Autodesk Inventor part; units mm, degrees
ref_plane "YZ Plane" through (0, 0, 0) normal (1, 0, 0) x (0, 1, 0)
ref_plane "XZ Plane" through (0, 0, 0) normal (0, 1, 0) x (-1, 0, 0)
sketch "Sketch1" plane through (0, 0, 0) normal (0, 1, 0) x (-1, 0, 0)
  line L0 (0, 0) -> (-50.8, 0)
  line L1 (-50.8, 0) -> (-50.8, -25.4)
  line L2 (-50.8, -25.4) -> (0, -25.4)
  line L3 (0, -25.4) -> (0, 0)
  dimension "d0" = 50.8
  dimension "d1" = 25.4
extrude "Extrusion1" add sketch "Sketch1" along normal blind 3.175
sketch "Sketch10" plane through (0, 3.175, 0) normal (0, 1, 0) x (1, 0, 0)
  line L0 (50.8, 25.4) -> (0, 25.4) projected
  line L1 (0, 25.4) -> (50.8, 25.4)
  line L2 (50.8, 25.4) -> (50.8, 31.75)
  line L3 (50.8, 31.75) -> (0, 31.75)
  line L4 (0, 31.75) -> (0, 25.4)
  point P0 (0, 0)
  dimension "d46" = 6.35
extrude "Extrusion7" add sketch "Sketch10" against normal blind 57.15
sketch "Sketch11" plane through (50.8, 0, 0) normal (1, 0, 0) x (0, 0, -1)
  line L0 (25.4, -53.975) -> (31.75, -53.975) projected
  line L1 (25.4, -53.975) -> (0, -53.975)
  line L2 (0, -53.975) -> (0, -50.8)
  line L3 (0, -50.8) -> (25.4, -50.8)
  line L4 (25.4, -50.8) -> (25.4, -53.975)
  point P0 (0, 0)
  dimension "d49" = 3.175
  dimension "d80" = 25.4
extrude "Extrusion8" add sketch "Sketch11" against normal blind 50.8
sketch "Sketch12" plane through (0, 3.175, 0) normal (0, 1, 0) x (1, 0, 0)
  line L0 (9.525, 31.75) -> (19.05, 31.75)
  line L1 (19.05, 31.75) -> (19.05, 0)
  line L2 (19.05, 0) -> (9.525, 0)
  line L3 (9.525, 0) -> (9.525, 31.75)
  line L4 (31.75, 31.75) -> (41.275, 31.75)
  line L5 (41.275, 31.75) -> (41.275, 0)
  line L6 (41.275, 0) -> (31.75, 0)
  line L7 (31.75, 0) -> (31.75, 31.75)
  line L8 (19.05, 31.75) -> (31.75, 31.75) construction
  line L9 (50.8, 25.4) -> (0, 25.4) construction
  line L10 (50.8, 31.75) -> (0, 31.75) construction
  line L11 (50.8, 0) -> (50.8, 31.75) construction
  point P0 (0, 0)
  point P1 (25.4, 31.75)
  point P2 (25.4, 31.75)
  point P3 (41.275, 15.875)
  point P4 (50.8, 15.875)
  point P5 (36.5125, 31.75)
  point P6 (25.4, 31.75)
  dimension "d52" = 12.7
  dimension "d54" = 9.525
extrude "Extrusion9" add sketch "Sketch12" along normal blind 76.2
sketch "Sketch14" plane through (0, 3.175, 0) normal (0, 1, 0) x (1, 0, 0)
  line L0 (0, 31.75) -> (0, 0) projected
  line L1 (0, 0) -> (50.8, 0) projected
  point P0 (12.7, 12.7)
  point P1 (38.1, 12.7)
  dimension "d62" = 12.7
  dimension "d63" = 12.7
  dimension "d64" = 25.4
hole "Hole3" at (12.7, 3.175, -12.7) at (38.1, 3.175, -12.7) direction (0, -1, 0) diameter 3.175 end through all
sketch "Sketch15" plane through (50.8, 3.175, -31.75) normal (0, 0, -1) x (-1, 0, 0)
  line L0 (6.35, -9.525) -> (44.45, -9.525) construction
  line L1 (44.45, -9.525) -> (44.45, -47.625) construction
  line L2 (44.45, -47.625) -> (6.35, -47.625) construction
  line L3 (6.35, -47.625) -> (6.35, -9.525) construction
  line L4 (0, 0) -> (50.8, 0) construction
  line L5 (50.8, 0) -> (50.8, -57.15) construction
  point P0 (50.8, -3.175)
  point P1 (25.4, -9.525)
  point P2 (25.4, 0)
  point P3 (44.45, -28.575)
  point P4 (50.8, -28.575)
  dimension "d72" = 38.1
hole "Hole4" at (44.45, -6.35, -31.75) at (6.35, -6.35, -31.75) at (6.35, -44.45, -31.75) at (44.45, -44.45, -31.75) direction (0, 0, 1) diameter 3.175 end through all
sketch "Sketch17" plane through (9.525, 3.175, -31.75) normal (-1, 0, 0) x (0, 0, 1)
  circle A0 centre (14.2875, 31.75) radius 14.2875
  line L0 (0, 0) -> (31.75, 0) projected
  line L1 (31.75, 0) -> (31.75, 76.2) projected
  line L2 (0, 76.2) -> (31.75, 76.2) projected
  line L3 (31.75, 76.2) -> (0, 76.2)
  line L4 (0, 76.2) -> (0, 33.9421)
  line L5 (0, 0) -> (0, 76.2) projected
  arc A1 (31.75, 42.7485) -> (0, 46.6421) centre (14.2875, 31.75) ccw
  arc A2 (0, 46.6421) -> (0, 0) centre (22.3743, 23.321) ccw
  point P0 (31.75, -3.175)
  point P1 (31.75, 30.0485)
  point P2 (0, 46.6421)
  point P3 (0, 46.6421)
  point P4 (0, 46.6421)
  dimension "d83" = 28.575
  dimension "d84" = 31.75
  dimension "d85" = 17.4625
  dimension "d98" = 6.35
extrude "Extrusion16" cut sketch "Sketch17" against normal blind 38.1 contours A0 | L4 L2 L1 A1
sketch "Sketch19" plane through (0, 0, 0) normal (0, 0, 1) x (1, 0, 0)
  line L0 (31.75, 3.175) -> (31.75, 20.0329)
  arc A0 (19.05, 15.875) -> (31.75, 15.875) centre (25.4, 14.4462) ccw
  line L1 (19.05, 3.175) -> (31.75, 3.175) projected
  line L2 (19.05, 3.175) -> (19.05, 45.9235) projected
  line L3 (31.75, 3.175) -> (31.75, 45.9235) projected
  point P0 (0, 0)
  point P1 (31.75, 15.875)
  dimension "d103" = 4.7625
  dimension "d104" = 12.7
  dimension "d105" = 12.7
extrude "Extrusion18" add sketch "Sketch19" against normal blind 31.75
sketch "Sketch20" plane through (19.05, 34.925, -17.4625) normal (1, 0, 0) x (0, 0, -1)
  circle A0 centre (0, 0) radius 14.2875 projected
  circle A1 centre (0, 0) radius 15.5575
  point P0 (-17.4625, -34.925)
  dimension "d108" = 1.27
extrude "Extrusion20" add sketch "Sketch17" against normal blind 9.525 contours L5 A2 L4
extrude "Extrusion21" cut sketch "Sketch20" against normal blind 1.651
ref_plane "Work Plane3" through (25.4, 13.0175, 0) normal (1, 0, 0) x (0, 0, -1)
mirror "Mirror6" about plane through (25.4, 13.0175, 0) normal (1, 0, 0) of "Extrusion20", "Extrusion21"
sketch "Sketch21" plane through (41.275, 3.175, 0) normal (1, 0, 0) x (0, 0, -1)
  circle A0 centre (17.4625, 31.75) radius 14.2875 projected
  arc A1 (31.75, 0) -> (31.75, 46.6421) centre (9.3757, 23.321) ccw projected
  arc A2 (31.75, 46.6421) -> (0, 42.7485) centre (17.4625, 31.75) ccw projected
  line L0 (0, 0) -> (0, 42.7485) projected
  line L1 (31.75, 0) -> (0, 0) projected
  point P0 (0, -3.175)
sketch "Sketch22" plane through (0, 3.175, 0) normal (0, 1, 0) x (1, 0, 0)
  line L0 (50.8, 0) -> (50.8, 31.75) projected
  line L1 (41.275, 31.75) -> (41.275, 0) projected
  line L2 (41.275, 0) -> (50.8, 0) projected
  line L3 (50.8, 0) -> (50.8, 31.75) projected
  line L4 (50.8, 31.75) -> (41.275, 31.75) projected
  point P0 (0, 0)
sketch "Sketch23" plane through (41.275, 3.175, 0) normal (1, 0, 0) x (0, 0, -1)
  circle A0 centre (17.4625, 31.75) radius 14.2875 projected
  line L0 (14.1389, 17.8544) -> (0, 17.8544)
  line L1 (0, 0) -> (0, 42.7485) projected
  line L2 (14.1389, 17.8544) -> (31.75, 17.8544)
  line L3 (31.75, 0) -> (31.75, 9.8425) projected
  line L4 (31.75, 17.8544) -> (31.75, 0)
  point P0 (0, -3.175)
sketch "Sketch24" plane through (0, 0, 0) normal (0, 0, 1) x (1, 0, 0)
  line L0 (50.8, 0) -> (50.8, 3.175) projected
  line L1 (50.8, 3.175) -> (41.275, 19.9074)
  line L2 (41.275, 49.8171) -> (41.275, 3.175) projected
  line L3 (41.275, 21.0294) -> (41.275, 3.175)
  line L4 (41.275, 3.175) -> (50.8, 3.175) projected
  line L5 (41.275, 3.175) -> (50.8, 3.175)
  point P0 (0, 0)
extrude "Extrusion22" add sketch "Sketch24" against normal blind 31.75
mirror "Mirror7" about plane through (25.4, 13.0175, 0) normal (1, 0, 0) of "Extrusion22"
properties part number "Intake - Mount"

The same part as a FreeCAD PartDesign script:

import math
import FreeCAD as App
import Part
import Sketcher
Q = App.Units.Quantity

doc = App.newDocument("Part")
body = doc.addObject("PartDesign::Body", "Body")

# Sketch on XZ plane
sketch1 = body.newObject("Sketcher::SketchObject", "Sketch")
sketch1.AttachmentSupport = (doc.getObject("XZ_Plane"), [""])
sketch1.MapMode = "FlatFace"
sketch1.addGeometry(Part.LineSegment(App.Vector(0, -25, 0), App.Vector(0, 0, 0)), False)
sketch1.addGeometry(Part.LineSegment(App.Vector(0, 0, 0), App.Vector(51, 0, 0)), False)
sketch1.addGeometry(Part.LineSegment(App.Vector(51, 0, 0), App.Vector(51, -25, 0)), False)
sketch1.addGeometry(Part.LineSegment(App.Vector(51, -25, 0), App.Vector(0, -25, 0)), False)
sketch1.addConstraint(Sketcher.Constraint("Coincident", 0, 2, 1, 1))
sketch1.addConstraint(Sketcher.Constraint("Coincident", 1, 2, 2, 1))
sketch1.addConstraint(Sketcher.Constraint("Coincident", 2, 2, 3, 1))
sketch1.addConstraint(Sketcher.Constraint("Coincident", 3, 2, 0, 1))
sketch1.addConstraint(Sketcher.Constraint("Vertical", 0))
sketch1.addConstraint(Sketcher.Constraint("Horizontal", 1))
sketch1.addConstraint(Sketcher.Constraint("Vertical", 2))
sketch1.addConstraint(Sketcher.Constraint("Horizontal", 3))
sketch1.addConstraint(Sketcher.Constraint("Coincident", 0, 2, -1, 1))
sketch1.addConstraint(Sketcher.Constraint("DistanceX", 1, 1, 1, 2, Q("2 in")))
sketch1.addConstraint(Sketcher.Constraint("DistanceY", 0, 1, 0, 2, Q("1 in")))
pad1 = body.newObject("PartDesign::Pad", "Pad")
pad1.Profile = sketch1
pad1.Length = Q("0.125 in")
pad1.Reversed = True

# Sketch on XZ plane
sketch2 = body.newObject("Sketcher::SketchObject", "Sketch001")
sketch2.AttachmentSupport = (doc.getObject("XZ_Plane"), [""])
sketch2.MapMode = "FlatFace"
sketch2.AttachmentOffset = App.Placement(App.Vector(0, 0, -0.125 * 25.4), App.Rotation())
sketch2.addGeometry(Part.LineSegment(App.Vector(0, -25, 0), App.Vector(51, -25, 0)), False)
sketch2.addGeometry(Part.LineSegment(App.Vector(51, -25, 0), App.Vector(51, -32, 0)), False)
sketch2.addGeometry(Part.LineSegment(App.Vector(51, -32, 0), App.Vector(0, -32, 0)), False)
sketch2.addGeometry(Part.LineSegment(App.Vector(0, -32, 0), App.Vector(0, -25, 0)), False)
sketch2.addConstraint(Sketcher.Constraint("Coincident", 0, 2, 1, 1))
sketch2.addConstraint(Sketcher.Constraint("Coincident", 1, 2, 2, 1))
sketch2.addConstraint(Sketcher.Constraint("Coincident", 2, 2, 3, 1))
sketch2.addConstraint(Sketcher.Constraint("Coincident", 3, 2, 0, 1))
sketch2.addConstraint(Sketcher.Constraint("Horizontal", 0))
sketch2.addConstraint(Sketcher.Constraint("Vertical", 1))
sketch2.addConstraint(Sketcher.Constraint("Horizontal", 2))
sketch2.addConstraint(Sketcher.Constraint("Vertical", 3))
sketch2.addConstraint(Sketcher.Constraint("PointOnObject", 2, 2, -2))
sketch2.addConstraint(Sketcher.Constraint("DistanceY", 1, 2, 1, 1, Q("0.25 in")))
sketch2.addConstraint(Sketcher.Constraint("DistanceX", 0, 1, 0, 2, Q("2 in")))
sketch2.addConstraint(Sketcher.Constraint("DistanceY", 0, 2, -1, 1, Q("1 in")))
pad2 = body.newObject("PartDesign::Pad", "Pad001")
pad2.Profile = sketch2
pad2.Length = Q("2.25 in")

# Sketch on YZ plane
sketch3 = body.newObject("Sketcher::SketchObject", "Sketch002")
sketch3.AttachmentSupport = (doc.getObject("YZ_Plane"), [""])
sketch3.MapMode = "FlatFace"
sketch3.AttachmentOffset = App.Placement(App.Vector(0, 0, 2 * 25.4), App.Rotation())
sketch3.addGeometry(Part.LineSegment(App.Vector(-54, 0, 0), App.Vector(-54, -25.4, 0)), False)
sketch3.addGeometry(Part.LineSegment(App.Vector(-54, -25.4, 0), App.Vector(-50.8, -25.4, 0)), False)
sketch3.addGeometry(Part.LineSegment(App.Vector(-50.8, -25.4, 0), App.Vector(-50.8, 0, 0)), False)
sketch3.addGeometry(Part.LineSegment(App.Vector(-50.8, 0, 0), App.Vector(-54, 0, 0)), False)
sketch3.addConstraint(Sketcher.Constraint("Coincident", 0, 2, 1, 1))
sketch3.addConstraint(Sketcher.Constraint("Coincident", 1, 2, 2, 1))
sketch3.addConstraint(Sketcher.Constraint("Coincident", 2, 2, 3, 1))
sketch3.addConstraint(Sketcher.Constraint("Coincident", 3, 2, 0, 1))
sketch3.addConstraint(Sketcher.Constraint("Vertical", 0))
sketch3.addConstraint(Sketcher.Constraint("Horizontal", 1))
sketch3.addConstraint(Sketcher.Constraint("Vertical", 2))
sketch3.addConstraint(Sketcher.Constraint("Horizontal", 3))
sketch3.addConstraint(Sketcher.Constraint("PointOnObject", 2, 2, -1))
sketch3.addConstraint(Sketcher.Constraint("DistanceY", 0, 2, 0, 1, Q("1 in")))
sketch3.addConstraint(Sketcher.Constraint("DistanceX", 1, 1, 1, 2, Q("0.125 in")))
sketch3.addConstraint(Sketcher.Constraint("DistanceX", 1, 2, -1, 1, Q("2 in")))
pad3 = body.newObject("PartDesign::Pad", "Pad002")
pad3.Profile = sketch3
pad3.Length = Q("2 in")
pad3.Reversed = True

# Sketch on XZ plane
sketch4 = body.newObject("Sketcher::SketchObject", "Sketch003")
sketch4.AttachmentSupport = (doc.getObject("XZ_Plane"), [""])
sketch4.MapMode = "FlatFace"
sketch4.AttachmentOffset = App.Placement(App.Vector(0, 0, -0.125 * 25.4), App.Rotation())
sketch4.addGeometry(Part.LineSegment(App.Vector(19, -32, 0), App.Vector(10, -32, 0)), False)
sketch4.addGeometry(Part.LineSegment(App.Vector(10, -32, 0), App.Vector(10, 0, 0)), False)
sketch4.addGeometry(Part.LineSegment(App.Vector(10, 0, 0), App.Vector(19, 0, 0)), False)
sketch4.addGeometry(Part.LineSegment(App.Vector(19, 0, 0), App.Vector(19, -32, 0)), False)
sketch4.addGeometry(Part.LineSegment(App.Vector(41, -32, 0), App.Vector(32, -32, 0)), False)
sketch4.addGeometry(Part.LineSegment(App.Vector(32, -32, 0), App.Vector(32, 0, 0)), False)
sketch4.addGeometry(Part.LineSegment(App.Vector(32, 0, 0), App.Vector(41, 0, 0)), False)
sketch4.addGeometry(Part.LineSegment(App.Vector(41, 0, 0), App.Vector(41, -32, 0)), False)
sketch4.addConstraint(Sketcher.Constraint("Coincident", 0, 2, 1, 1))
sketch4.addConstraint(Sketcher.Constraint("Coincident", 1, 2, 2, 1))
sketch4.addConstraint(Sketcher.Constraint("Coincident", 2, 2, 3, 1))
sketch4.addConstraint(Sketcher.Constraint("Coincident", 3, 2, 0, 1))
sketch4.addConstraint(Sketcher.Constraint("Coincident", 4, 2, 5, 1))
sketch4.addConstraint(Sketcher.Constraint("Coincident", 5, 2, 6, 1))
sketch4.addConstraint(Sketcher.Constraint("Coincident", 6, 2, 7, 1))
sketch4.addConstraint(Sketcher.Constraint("Coincident", 7, 2, 4, 1))
sketch4.addConstraint(Sketcher.Constraint("Horizontal", 0))
sketch4.addConstraint(Sketcher.Constraint("Vertical", 1))
sketch4.addConstraint(Sketcher.Constraint("Horizontal", 2))
sketch4.addConstraint(Sketcher.Constraint("Vertical", 3))
sketch4.addConstraint(Sketcher.Constraint("Horizontal", 4))
sketch4.addConstraint(Sketcher.Constraint("Vertical", 5))
sketch4.addConstraint(Sketcher.Constraint("Horizontal", 6))
sketch4.addConstraint(Sketcher.Constraint("Vertical", 7))
sketch4.addConstraint(Sketcher.Constraint("PointOnObject", 1, 2, -1))
sketch4.addConstraint(Sketcher.Constraint("PointOnObject", 5, 2, -1))
sketch4.addConstraint(Sketcher.Constraint("Horizontal", 3, 2, 4, 2))
sketch4.addConstraint(Sketcher.Constraint("Equal", 2, 4))
sketch4.addConstraint(Sketcher.Constraint("DistanceX", 3, 2, 4, 2, Q("0.5 in")))
sketch4.addConstraint(Sketcher.Constraint("DistanceX", 0, 2, 0, 1, Q("0.375 in")))
sketch4.addConstraint(Sketcher.Constraint("DistanceX", -1, 1, 0, 2, Q("0.375 in")))
sketch4.addConstraint(Sketcher.Constraint("DistanceY", 1, 1, 1, 2, Q("1.25 in")))
pad4 = body.newObject("PartDesign::Pad", "Pad003")
pad4.Profile = sketch4
pad4.Length = Q("3 in")
pad4.Reversed = True

# Sketch on XZ plane
sketch5 = body.newObject("Sketcher::SketchObject", "Sketch004")
sketch5.AttachmentSupport = (doc.getObject("XZ_Plane"), [""])
sketch5.MapMode = "FlatFace"
sketch5.AttachmentOffset = App.Placement(App.Vector(0, 0, -0.125 * 25.4), App.Rotation())
sketch5.addGeometry(Part.Circle(App.Vector(12.7, -12.7, 0), App.Vector(0, 0, 1), 1.6), False)
sketch5.addGeometry(Part.Circle(App.Vector(38.1, -12.7, 0), App.Vector(0, 0, 1), 1.6), False)
sketch5.addConstraint(Sketcher.Constraint("Equal", 0, 1))
sketch5.addConstraint(Sketcher.Constraint("Horizontal", 0, 3, 1, 3))
sketch5.addConstraint(Sketcher.Constraint("Diameter", 0, Q("0.125 in")))
sketch5.addConstraint(Sketcher.Constraint("DistanceX", 0, 3, 1, 3, Q("1 in")))
sketch5.addConstraint(Sketcher.Constraint("DistanceX", -1, 1, 0, 3, Q("0.5 in")))
sketch5.addConstraint(Sketcher.Constraint("DistanceY", 0, 3, -1, 1, Q("0.5 in")))
doc.recompute()
hole = body.newObject("PartDesign::Hole", "Hole")
hole.Profile = sketch5
hole.ThreadType = "None"
hole.Diameter = Q("0.125 in")
hole.DepthType = "ThroughAll"
hole.Reversed = True

# Sketch on XY plane
sketch6 = body.newObject("Sketcher::SketchObject", "Sketch005")
sketch6.AttachmentSupport = (doc.getObject("XY_Plane"), [""])
sketch6.MapMode = "FlatFace"
sketch6.AttachmentOffset = App.Placement(App.Vector(0, 0, -1.25 * 25.4), App.Rotation())
sketch6.addGeometry(Part.Circle(App.Vector(44.5, -6.3, 0), App.Vector(0, 0, 1), 1.6), False)
sketch6.addGeometry(Part.Circle(App.Vector(6.3, -6.3, 0), App.Vector(0, 0, 1), 1.6), False)
sketch6.addGeometry(Part.Circle(App.Vector(6.3, -44.5, 0), App.Vector(0, 0, 1), 1.6), False)
sketch6.addGeometry(Part.Circle(App.Vector(44.5, -44.5, 0), App.Vector(0, 0, 1), 1.6), False)
sketch6.addConstraint(Sketcher.Constraint("Equal", 0, 1))
sketch6.addConstraint(Sketcher.Constraint("Equal", 1, 2))
sketch6.addConstraint(Sketcher.Constraint("Equal", 2, 3))
sketch6.addConstraint(Sketcher.Constraint("Horizontal", 0, 3, 1, 3))
sketch6.addConstraint(Sketcher.Constraint("Horizontal", 2, 3, 3, 3))
sketch6.addConstraint(Sketcher.Constraint("Vertical", 1, 3, 2, 3))
sketch6.addConstraint(Sketcher.Constraint("Vertical", 0, 3, 3, 3))
sketch6.addConstraint(Sketcher.Constraint("Diameter", 0, Q("0.125 in")))
sketch6.addConstraint(Sketcher.Constraint("DistanceX", 1, 3, 0, 3, Q("1.5 in")))
sketch6.addConstraint(Sketcher.Constraint("DistanceY", 2, 3, 1, 3, Q("1.5 in")))
sketch6.addConstraint(Sketcher.Constraint("DistanceX", -1, 1, 0, 3, Q("1.75 in")))
sketch6.addConstraint(Sketcher.Constraint("DistanceY", 0, 3, -1, 1, Q("0.25 in")))
doc.recompute()
hole2 = body.newObject("PartDesign::Hole", "Hole001")
hole2.Profile = sketch6
hole2.ThreadType = "None"
hole2.Diameter = Q("0.125 in")
hole2.DepthType = "ThroughAll"
hole2.Reversed = True

# Sketch on YZ plane
sketch7 = body.newObject("Sketcher::SketchObject", "Sketch006")
sketch7.AttachmentSupport = (doc.getObject("YZ_Plane"), [""])
sketch7.MapMode = "FlatFace"
sketch7.AttachmentOffset = App.Placement(App.Vector(0, 0, 0.375 * 25.4), App.Rotation())
sketch7.addGeometry(Part.Circle(App.Vector(35, -17, 0), App.Vector(0, 0, 1), 14), False)
sketch7.addGeometry(Part.LineSegment(App.Vector(79, -32, 0), App.Vector(50, -32, 0)), False)
sketch7.addGeometry(Part.ArcOfCircle(Part.Circle(App.Vector(35, -17, 0), App.Vector(0, 0, 1), 21), math.radians(-44), math.radians(58)), False)
sketch7.addGeometry(Part.LineSegment(App.Vector(46, 0, 0), App.Vector(79, 0, 0)), False)
sketch7.addGeometry(Part.LineSegment(App.Vector(79, 0, 0), App.Vector(79, -32, 0)), False)
sketch7.addConstraint(Sketcher.Constraint("Coincident", 1, 2, 2, 1))
sketch7.addConstraint(Sketcher.Constraint("Coincident", 2, 2, 3, 1))
sketch7.addConstraint(Sketcher.Constraint("Coincident", 3, 2, 4, 1))
sketch7.addConstraint(Sketcher.Constraint("Coincident", 4, 2, 1, 1))
sketch7.addConstraint(Sketcher.Constraint("Horizontal", 1))
sketch7.addConstraint(Sketcher.Constraint("Horizontal", 3))
sketch7.addConstraint(Sketcher.Constraint("Vertical", 4))
sketch7.addConstraint(Sketcher.Constraint("Coincident", 2, 3, 0, 3))
sketch7.addConstraint(Sketcher.Constraint("PointOnObject", 2, 2, -1))
sketch7.addConstraint(Sketcher.Constraint("Diameter", 0, Q("1.125 in")))
sketch7.addConstraint(Sketcher.Constraint("DistanceY", 4, 2, 4, 1, Q("1.25 in")))
sketch7.addConstraint(Sketcher.Constraint("DistanceY", 0, 3, -1, 1, Q("0.6875 in")))
sketch7.addConstraint(Sketcher.Constraint("Radius", 2, Q("0.8125 in")))
sketch7.addConstraint(Sketcher.Constraint("DistanceX", 3, 1, 3, 2, Q("1.317 in")))
sketch7.addConstraint(Sketcher.Constraint("DistanceX", -1, 1, 0, 3, Q("1.375 in")))
pocket1 = body.newObject("PartDesign::Pocket", "Pocket")
pocket1.Profile = sketch7
pocket1.Length = Q("1.5 in")
pocket1.Reversed = True

# Sketch on XY plane
sketch8 = body.newObject("Sketcher::SketchObject", "Sketch007")
sketch8.AttachmentSupport = (doc.getObject("XY_Plane"), [""])
sketch8.MapMode = "FlatFace"
sketch8.addGeometry(Part.LineSegment(App.Vector(19.1, 3.2, 0), App.Vector(31.8, 3.2, 0)), False)
sketch8.addGeometry(Part.LineSegment(App.Vector(31.8, 3.2, 0), App.Vector(31.8, 13, 0)), False)
sketch8.addGeometry(Part.ArcOfCircle(Part.Circle(App.Vector(25.4, 14.4, 0), App.Vector(0, 0, 1), 6.5), math.radians(-167), math.radians(-13)), False)
sketch8.addGeometry(Part.LineSegment(App.Vector(19.1, 13, 0), App.Vector(19.1, 3.2, 0)), False)
sketch8.addGeometry(Part.ArcOfCircle(Part.Circle(App.Vector(25.4, 14.4, 0), App.Vector(0, 0, 1), 6.5), math.radians(167), math.radians(193)), False)
sketch8.addGeometry(Part.LineSegment(App.Vector(19.1, 13, 0), App.Vector(19.1, 15.9, 0)), False)
sketch8.addGeometry(Part.LineSegment(App.Vector(31.8, 15.9, 0), App.Vector(31.8, 13, 0)), False)
sketch8.addGeometry(Part.ArcOfCircle(Part.Circle(App.Vector(25.4, 14.4, 0), App.Vector(0, 0, 1), 6.5), math.radians(-13), math.radians(13)), False)
sketch8.addConstraint(Sketcher.Constraint("Coincident", 0, 2, 1, 1))
sketch8.addConstraint(Sketcher.Constraint("Coincident", 1, 2, 2, 2))
sketch8.addConstraint(Sketcher.Constraint("Coincident", 2, 1, 3, 1))
sketch8.addConstraint(Sketcher.Constraint("Coincident", 3, 2, 0, 1))
sketch8.addConstraint(Sketcher.Constraint("Coincident", 4, 1, 5, 2))
sketch8.addConstraint(Sketcher.Constraint("Coincident", 5, 1, 4, 2))
sketch8.addConstraint(Sketcher.Constraint("Coincident", 6, 1, 7, 2))
sketch8.addConstraint(Sketcher.Constraint("Coincident", 7, 1, 6, 2))
sketch8.addConstraint(Sketcher.Constraint("Horizontal", 0))
sketch8.addConstraint(Sketcher.Constraint("Vertical", 1))
sketch8.addConstraint(Sketcher.Constraint("Vertical", 3))
sketch8.addConstraint(Sketcher.Constraint("Vertical", 5))
sketch8.addConstraint(Sketcher.Constraint("Vertical", 6))
sketch8.addConstraint(Sketcher.Constraint("Coincident", 4, 3, 2, 3))
sketch8.addConstraint(Sketcher.Constraint("Coincident", 7, 3, 2, 3))
sketch8.addConstraint(Sketcher.Constraint("Coincident", 5, 1, 2, 1))
sketch8.addConstraint(Sketcher.Constraint("Coincident", 7, 1, 1, 2))
sketch8.addConstraint(Sketcher.Constraint("Horizontal", 1, 2, 2, 1))
sketch8.addConstraint(Sketcher.Constraint("DistanceX", 0, 1, 0, 2, Q("0.5 in")))
sketch8.addConstraint(Sketcher.Constraint("DistanceY", 3, 2, 4, 1, Q("0.5 in")))
sketch8.addConstraint(Sketcher.Constraint("DistanceX", -1, 1, 2, 3, Q("1 in")))
sketch8.addConstraint(Sketcher.Constraint("Radius", 2, 6.5088))
sketch8.addConstraint(Sketcher.Constraint("DistanceY", -1, 1, 0, 2, Q("0.125 in")))
pad5 = body.newObject("PartDesign::Pad", "Pad004")
pad5.Profile = sketch8
pad5.Length = Q("1.25 in")
pad5.Reversed = True

# Sketch on YZ plane
sketch9 = body.newObject("Sketcher::SketchObject", "Sketch008")
sketch9.AttachmentSupport = (doc.getObject("YZ_Plane"), [""])
sketch9.MapMode = "FlatFace"
sketch9.AttachmentOffset = App.Placement(App.Vector(0, 0, 0.375 * 25.4), App.Rotation())
sketch9.addGeometry(Part.LineSegment(App.Vector(3, -32, 0), App.Vector(50, -32, 0)), False)
sketch9.addGeometry(Part.ArcOfCircle(Part.Circle(App.Vector(26, -9, 0), App.Vector(0, 0, 1), 32), math.radians(-136), math.radians(-44)), False)
sketch9.addConstraint(Sketcher.Constraint("Coincident", 0, 1, 1, 1))
sketch9.addConstraint(Sketcher.Constraint("Coincident", 1, 2, 0, 2))
sketch9.addConstraint(Sketcher.Constraint("Horizontal", 0))
sketch9.addConstraint(Sketcher.Constraint("DistanceY", 0, 1, -1, 1, Q("1.25 in")))
sketch9.addConstraint(Sketcher.Constraint("Radius", 1, 32.3185))
sketch9.addConstraint(Sketcher.Constraint("DistanceX", 0, 1, 0, 2, Q("1.8363 in")))
sketch9.addConstraint(Sketcher.Constraint("DistanceX", -1, 1, 0, 1, Q("0.125 in")))
pad6 = body.newObject("PartDesign::Pad", "Pad005")
pad6.Profile = sketch9
pad6.Length = Q("0.375 in")

# Sketch on YZ plane
sketch10 = body.newObject("Sketcher::SketchObject", "Sketch009")
sketch10.AttachmentSupport = (doc.getObject("YZ_Plane"), [""])
sketch10.MapMode = "FlatFace"
sketch10.AttachmentOffset = App.Placement(App.Vector(0, 0, 0.75 * 25.4), App.Rotation())
sketch10.addGeometry(Part.Circle(App.Vector(35, -17, 0), App.Vector(0, 0, 1), 16), False)
sketch10.addGeometry(Part.Circle(App.Vector(35, -17, 0), App.Vector(0, 0, 1), 14), False)
sketch10.addConstraint(Sketcher.Constraint("Coincident", 1, 3, 0, 3))
sketch10.addConstraint(Sketcher.Constraint("Diameter", 0, Q("1.225 in")))
sketch10.addConstraint(Sketcher.Constraint("Diameter", 1, Q("1.125 in")))
sketch10.addConstraint(Sketcher.Constraint("DistanceX", -1, 1, 0, 3, Q("1.375 in")))
sketch10.addConstraint(Sketcher.Constraint("DistanceY", 0, 3, -1, 1, Q("0.6875 in")))
pocket2 = body.newObject("PartDesign::Pocket", "Pocket001")
pocket2.Profile = sketch10
pocket2.Length = Q("0.065 in")
doc.recompute()

datumplane = body.newObject("PartDesign::Plane", "DatumPlane")
datumplane.AttachmentSupport = (doc.getObject("YZ_Plane"), [""])
datumplane.MapMode = "FlatFace"
datumplane.AttachmentOffset = App.Placement(App.Vector(0, 0, 1 * 25.4), App.Rotation())
mirrored = body.newObject("PartDesign::Mirrored", "Mirrored")
mirrored.Originals = [pad6, pocket2]
mirrored.MirrorPlane = (datumplane, [""])
body.Tip = mirrored

# Sketch on XY plane
sketch11 = body.newObject("Sketcher::SketchObject", "Sketch010")
sketch11.AttachmentSupport = (doc.getObject("XY_Plane"), [""])
sketch11.MapMode = "FlatFace"
sketch11.addGeometry(Part.LineSegment(App.Vector(41, 3, 0), App.Vector(51, 3, 0)), False)
sketch11.addGeometry(Part.LineSegment(App.Vector(51, 3, 0), App.Vector(41, 20, 0)), False)
sketch11.addGeometry(Part.LineSegment(App.Vector(41, 20, 0), App.Vector(41, 3, 0)), False)
sketch11.addConstraint(Sketcher.Constraint("Coincident", 0, 2, 1, 1))
sketch11.addConstraint(Sketcher.Constraint("Coincident", 1, 2, 2, 1))
sketch11.addConstraint(Sketcher.Constraint("Coincident", 2, 2, 0, 1))
sketch11.addConstraint(Sketcher.Constraint("Horizontal", 0))
sketch11.addConstraint(Sketcher.Constraint("Vertical", 2))
sketch11.addConstraint(Sketcher.Constraint("DistanceX", -1, 1, 0, 2, Q("2 in")))
sketch11.addConstraint(Sketcher.Constraint("DistanceX", 0, 1, 0, 2, Q("0.375 in")))
sketch11.addConstraint(Sketcher.Constraint("Angle", 1, Q("119.651 deg")))
sketch11.addConstraint(Sketcher.Constraint("DistanceY", -1, 1, 0, 2, Q("0.125 in")))
pad7 = body.newObject("PartDesign::Pad", "Pad006")
pad7.Profile = sketch11
pad7.Length = Q("1.25 in")
pad7.Reversed = True
doc.recompute()

datumplane2 = body.newObject("PartDesign::Plane", "DatumPlane001")
datumplane2.AttachmentSupport = (doc.getObject("YZ_Plane"), [""])
datumplane2.MapMode = "FlatFace"
datumplane2.AttachmentOffset = App.Placement(App.Vector(0, 0, 1 * 25.4), App.Rotation())
mirrored2 = body.newObject("PartDesign::Mirrored", "Mirrored001")
mirrored2.Originals = [pad7]
mirrored2.MirrorPlane = (datumplane2, [""])
body.Tip = mirrored2

doc.recompute()
